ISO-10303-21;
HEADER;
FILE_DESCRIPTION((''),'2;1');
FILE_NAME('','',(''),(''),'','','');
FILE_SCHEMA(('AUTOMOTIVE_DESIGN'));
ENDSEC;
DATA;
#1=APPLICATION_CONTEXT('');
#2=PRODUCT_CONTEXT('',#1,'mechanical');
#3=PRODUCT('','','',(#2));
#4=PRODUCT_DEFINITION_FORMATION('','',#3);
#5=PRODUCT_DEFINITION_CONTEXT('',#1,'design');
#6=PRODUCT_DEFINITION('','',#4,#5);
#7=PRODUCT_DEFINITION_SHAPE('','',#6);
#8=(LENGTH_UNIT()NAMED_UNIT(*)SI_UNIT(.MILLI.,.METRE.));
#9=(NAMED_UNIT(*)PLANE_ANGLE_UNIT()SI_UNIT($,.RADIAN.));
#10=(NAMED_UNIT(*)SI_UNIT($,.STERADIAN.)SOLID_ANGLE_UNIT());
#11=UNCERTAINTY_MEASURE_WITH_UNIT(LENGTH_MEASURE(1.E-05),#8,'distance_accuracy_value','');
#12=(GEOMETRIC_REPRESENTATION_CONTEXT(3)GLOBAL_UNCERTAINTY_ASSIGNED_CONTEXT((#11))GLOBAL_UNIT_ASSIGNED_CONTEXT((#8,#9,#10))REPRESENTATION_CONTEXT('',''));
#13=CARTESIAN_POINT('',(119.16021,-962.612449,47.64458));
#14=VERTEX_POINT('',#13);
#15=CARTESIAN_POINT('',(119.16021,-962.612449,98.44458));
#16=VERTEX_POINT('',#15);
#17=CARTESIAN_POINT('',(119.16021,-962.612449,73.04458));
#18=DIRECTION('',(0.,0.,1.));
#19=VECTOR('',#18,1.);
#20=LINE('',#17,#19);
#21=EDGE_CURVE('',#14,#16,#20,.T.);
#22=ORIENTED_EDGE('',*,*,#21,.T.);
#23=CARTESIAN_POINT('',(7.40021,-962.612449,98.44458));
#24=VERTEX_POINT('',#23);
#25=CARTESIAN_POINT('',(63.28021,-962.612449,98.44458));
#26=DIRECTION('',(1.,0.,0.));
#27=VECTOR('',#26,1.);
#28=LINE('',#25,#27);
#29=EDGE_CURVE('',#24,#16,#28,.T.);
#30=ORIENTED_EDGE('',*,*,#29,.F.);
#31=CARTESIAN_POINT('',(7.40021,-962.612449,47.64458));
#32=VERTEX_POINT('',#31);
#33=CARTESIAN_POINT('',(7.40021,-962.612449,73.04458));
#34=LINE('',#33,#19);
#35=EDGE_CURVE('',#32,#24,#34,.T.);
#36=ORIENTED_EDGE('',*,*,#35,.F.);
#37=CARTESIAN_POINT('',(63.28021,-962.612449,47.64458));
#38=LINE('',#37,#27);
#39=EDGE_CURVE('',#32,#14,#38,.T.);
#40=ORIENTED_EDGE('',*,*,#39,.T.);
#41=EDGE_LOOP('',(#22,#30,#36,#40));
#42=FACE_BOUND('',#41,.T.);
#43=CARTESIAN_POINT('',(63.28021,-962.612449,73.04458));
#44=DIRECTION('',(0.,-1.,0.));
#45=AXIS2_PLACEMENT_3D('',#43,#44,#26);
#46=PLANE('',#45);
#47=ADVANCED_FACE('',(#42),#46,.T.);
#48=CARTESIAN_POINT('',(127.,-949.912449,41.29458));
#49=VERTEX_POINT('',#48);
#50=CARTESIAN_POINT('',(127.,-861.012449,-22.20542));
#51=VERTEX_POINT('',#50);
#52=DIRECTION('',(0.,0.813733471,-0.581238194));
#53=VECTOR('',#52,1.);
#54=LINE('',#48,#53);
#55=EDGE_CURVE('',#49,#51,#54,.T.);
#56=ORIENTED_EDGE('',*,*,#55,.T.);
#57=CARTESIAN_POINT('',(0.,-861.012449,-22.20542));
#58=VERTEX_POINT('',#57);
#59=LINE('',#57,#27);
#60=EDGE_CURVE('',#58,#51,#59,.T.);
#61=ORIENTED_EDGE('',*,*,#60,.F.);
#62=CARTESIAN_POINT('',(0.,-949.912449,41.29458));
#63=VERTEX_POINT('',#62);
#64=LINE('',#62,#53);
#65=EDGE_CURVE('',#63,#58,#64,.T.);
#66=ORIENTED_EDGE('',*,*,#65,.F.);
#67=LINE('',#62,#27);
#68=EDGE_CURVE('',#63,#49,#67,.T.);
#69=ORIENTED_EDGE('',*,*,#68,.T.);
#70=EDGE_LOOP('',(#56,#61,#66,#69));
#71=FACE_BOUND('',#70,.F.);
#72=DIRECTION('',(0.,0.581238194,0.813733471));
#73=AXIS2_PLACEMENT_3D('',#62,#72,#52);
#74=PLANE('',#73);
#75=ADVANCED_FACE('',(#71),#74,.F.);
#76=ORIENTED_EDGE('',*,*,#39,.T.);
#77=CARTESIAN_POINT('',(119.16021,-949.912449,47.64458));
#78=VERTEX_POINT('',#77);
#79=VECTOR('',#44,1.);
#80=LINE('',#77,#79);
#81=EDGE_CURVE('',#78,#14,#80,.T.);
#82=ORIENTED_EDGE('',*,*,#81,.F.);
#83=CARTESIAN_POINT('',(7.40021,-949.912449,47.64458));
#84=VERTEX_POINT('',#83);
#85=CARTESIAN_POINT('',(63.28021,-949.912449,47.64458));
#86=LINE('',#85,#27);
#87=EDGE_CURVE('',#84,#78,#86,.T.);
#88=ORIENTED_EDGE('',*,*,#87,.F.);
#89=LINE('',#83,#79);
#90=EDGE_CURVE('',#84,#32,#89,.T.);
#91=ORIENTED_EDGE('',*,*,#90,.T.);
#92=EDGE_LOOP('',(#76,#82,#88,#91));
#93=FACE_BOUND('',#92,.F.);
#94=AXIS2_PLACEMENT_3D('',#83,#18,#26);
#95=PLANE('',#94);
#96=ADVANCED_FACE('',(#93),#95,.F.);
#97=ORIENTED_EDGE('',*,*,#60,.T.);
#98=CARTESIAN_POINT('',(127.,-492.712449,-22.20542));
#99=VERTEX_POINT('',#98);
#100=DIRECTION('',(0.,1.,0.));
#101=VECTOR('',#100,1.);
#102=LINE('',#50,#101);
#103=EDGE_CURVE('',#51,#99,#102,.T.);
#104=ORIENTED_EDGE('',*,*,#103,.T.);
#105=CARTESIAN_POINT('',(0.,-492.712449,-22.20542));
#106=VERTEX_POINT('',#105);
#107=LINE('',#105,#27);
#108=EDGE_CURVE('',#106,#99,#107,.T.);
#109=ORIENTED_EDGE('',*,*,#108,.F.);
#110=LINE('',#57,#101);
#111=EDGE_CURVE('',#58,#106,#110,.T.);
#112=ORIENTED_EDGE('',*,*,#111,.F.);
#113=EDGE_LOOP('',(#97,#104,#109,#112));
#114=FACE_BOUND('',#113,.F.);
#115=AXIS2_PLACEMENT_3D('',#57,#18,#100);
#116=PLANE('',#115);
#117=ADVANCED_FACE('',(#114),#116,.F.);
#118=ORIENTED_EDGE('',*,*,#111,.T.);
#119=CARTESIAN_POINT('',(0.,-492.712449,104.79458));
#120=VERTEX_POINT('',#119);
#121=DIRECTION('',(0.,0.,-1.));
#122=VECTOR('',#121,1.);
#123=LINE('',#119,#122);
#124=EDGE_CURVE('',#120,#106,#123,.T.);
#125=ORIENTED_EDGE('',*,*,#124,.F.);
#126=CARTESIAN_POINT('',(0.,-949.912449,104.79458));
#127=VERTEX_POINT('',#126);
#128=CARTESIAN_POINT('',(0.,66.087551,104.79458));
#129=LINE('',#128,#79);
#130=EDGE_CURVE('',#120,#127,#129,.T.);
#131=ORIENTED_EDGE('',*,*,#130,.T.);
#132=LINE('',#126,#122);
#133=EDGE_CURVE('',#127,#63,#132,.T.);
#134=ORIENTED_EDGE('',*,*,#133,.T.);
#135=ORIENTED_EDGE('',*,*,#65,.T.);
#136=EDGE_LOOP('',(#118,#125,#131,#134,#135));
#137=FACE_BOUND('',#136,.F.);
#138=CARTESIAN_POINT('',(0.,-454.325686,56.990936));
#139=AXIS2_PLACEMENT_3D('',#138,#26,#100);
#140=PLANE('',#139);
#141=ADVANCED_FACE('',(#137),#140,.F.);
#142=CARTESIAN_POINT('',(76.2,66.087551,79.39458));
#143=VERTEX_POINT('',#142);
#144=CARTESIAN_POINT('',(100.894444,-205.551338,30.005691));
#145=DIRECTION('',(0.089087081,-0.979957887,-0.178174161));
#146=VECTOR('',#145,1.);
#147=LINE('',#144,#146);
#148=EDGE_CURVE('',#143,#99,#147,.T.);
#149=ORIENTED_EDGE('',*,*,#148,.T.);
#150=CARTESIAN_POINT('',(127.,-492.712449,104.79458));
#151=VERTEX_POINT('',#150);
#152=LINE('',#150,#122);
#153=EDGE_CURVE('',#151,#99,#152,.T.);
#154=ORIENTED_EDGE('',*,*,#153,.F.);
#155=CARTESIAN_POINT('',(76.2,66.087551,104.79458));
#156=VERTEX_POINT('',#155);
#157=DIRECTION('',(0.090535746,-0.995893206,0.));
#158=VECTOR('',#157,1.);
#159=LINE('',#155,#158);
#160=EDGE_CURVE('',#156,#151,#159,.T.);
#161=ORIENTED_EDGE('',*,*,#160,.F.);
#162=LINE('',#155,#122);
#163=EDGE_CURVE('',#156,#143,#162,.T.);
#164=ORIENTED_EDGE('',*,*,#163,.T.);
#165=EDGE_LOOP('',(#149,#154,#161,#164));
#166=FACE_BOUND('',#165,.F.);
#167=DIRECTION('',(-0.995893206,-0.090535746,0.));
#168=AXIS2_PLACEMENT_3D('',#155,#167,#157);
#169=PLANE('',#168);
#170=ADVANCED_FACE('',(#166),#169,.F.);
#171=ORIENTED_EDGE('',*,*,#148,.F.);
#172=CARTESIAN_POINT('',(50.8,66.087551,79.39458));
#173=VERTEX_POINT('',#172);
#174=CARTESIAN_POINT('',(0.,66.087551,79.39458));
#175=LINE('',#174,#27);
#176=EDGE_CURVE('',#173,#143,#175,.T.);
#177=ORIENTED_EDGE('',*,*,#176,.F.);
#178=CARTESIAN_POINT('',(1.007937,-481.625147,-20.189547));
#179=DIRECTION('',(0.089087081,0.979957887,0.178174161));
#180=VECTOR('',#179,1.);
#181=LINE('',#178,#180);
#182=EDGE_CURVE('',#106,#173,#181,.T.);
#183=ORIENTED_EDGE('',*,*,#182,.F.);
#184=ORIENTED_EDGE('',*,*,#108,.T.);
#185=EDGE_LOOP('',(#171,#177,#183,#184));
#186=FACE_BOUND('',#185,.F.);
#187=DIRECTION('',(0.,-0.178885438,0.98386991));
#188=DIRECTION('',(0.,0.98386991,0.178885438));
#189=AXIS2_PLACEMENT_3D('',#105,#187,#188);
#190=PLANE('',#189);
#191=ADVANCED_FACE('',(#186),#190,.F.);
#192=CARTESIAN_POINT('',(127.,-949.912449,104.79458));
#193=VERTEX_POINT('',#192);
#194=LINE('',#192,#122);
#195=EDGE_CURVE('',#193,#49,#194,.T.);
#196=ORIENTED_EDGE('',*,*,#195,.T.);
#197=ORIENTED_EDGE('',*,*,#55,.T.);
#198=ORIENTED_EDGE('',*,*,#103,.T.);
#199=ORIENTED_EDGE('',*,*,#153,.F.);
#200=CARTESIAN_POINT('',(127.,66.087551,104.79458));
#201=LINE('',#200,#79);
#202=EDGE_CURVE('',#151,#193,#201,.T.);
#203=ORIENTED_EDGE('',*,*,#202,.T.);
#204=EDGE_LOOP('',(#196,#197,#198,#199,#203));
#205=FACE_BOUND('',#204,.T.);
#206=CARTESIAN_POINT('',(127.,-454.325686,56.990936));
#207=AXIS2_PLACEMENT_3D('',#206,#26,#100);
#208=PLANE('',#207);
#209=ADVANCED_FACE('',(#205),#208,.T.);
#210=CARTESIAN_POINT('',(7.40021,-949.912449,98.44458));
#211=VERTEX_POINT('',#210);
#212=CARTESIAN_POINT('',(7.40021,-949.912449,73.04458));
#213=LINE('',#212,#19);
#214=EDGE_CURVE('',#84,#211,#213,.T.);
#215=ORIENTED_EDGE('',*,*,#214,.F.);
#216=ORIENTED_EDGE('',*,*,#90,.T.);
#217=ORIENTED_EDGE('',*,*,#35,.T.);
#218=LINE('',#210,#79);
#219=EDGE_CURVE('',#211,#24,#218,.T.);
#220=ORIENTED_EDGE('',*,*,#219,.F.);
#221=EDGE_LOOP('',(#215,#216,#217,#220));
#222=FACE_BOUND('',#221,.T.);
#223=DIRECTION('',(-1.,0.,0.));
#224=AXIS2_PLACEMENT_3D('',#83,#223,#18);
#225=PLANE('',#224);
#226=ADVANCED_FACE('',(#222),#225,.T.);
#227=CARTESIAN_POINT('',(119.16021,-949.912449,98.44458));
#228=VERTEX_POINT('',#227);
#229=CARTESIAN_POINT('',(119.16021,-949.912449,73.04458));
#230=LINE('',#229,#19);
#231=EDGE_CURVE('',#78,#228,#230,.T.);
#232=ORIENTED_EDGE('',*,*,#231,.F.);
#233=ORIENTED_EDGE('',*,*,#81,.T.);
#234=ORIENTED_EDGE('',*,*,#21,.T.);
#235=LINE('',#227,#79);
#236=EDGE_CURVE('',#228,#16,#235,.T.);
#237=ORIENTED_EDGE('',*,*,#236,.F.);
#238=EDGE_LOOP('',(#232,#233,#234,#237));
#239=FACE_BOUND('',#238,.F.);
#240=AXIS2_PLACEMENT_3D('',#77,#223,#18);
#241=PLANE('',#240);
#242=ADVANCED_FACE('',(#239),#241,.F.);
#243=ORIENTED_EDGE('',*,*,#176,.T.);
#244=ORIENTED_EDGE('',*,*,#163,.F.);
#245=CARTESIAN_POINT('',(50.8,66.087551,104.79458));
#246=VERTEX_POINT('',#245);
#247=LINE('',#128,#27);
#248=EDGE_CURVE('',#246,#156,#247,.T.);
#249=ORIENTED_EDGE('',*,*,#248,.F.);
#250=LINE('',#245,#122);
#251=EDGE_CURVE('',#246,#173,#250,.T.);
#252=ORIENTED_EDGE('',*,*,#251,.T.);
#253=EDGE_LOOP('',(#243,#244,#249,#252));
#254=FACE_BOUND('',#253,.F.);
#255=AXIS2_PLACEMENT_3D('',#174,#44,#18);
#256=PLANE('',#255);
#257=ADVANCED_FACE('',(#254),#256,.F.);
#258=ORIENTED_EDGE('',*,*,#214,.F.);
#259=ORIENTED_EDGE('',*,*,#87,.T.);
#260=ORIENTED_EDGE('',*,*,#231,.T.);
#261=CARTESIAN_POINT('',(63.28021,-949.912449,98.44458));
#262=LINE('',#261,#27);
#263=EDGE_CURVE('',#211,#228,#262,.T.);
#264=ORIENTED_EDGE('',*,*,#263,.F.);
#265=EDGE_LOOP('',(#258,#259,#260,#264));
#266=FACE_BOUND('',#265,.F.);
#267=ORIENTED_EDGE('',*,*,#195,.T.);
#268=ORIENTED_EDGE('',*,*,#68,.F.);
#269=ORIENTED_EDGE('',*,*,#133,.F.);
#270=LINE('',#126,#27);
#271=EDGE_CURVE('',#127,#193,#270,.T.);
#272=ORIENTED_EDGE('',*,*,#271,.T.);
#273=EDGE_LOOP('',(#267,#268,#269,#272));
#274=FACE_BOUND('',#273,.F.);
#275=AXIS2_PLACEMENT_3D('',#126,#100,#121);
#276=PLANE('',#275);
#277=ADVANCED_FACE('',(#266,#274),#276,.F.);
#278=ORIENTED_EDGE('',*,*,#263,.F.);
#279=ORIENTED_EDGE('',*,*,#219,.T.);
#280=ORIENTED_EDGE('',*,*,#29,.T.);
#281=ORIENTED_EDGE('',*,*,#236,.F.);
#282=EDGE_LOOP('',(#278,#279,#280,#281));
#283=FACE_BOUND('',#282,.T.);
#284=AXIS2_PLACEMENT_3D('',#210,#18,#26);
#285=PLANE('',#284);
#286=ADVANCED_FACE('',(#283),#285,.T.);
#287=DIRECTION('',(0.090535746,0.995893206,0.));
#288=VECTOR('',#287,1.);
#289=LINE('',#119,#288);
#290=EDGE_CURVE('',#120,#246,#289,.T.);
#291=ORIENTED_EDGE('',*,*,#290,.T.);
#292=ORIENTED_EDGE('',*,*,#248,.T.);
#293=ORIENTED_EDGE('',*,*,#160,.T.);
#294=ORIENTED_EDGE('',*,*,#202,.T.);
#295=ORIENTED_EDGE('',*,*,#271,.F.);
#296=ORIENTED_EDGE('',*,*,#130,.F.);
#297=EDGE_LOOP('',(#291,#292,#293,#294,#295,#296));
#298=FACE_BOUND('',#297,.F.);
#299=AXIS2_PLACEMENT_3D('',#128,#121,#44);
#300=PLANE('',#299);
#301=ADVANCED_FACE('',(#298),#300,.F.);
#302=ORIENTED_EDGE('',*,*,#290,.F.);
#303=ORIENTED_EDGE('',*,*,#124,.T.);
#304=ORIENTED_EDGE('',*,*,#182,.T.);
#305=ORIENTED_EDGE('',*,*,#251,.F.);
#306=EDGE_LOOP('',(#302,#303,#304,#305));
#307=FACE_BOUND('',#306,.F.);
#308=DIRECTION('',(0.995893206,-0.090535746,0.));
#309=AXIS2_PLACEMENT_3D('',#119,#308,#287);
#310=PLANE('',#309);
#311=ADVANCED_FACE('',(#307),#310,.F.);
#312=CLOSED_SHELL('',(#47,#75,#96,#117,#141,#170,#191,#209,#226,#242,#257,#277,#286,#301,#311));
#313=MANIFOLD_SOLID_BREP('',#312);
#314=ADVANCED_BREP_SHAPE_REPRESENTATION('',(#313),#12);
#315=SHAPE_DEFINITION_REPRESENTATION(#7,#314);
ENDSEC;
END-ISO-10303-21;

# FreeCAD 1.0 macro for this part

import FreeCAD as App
import Part
import Sketcher
Q = App.Units.Quantity

doc = App.newDocument("Part")
body = doc.addObject("PartDesign::Body", "Body")

# Sketch on YZ plane
sketch1 = body.newObject("Sketcher::SketchObject", "Sketch")
sketch1.AttachmentSupport = (doc.getObject("YZ_Plane"), [""])
sketch1.MapMode = "FlatFace"
sketch1.addGeometry(Part.LineSegment(App.Vector(66, 105, 0), App.Vector(-950, 105, 0)), False)
sketch1.addGeometry(Part.LineSegment(App.Vector(-950, 105, 0), App.Vector(-950, 41, 0)), False)
sketch1.addGeometry(Part.LineSegment(App.Vector(-950, 41, 0), App.Vector(-861, -22, 0)), False)
sketch1.addGeometry(Part.LineSegment(App.Vector(-861, -22, 0), App.Vector(-493, -22, 0)), False)
sketch1.addGeometry(Part.LineSegment(App.Vector(-493, -22, 0), App.Vector(66, 79, 0)), False)
sketch1.addGeometry(Part.LineSegment(App.Vector(66, 79, 0), App.Vector(66, 105, 0)), False)
sketch1.addConstraint(Sketcher.Constraint("Coincident", 0, 2, 1, 1))
sketch1.addConstraint(Sketcher.Constraint("Coincident", 1, 2, 2, 1))
sketch1.addConstraint(Sketcher.Constraint("Coincident", 2, 2, 3, 1))
sketch1.addConstraint(Sketcher.Constraint("Coincident", 3, 2, 4, 1))
sketch1.addConstraint(Sketcher.Constraint("Coincident", 4, 2, 5, 1))
sketch1.addConstraint(Sketcher.Constraint("Coincident", 5, 2, 0, 1))
sketch1.addConstraint(Sketcher.Constraint("Horizontal", 0))
sketch1.addConstraint(Sketcher.Constraint("Vertical", 1))
sketch1.addConstraint(Sketcher.Constraint("Horizontal", 3))
sketch1.addConstraint(Sketcher.Constraint("Vertical", 5))
sketch1.addConstraint(Sketcher.Constraint("DistanceX", 0, 2, 0, 1, Q("40 in")))
sketch1.addConstraint(Sketcher.Constraint("DistanceY", 5, 1, 5, 2, Q("1 in")))
sketch1.addConstraint(Sketcher.Constraint("DistanceX", 3, 1, 3, 2, Q("14.5 in")))
sketch1.addConstraint(Sketcher.Constraint("DistanceY", 1, 2, 1, 1, Q("2.5 in")))
sketch1.addConstraint(Sketcher.Constraint("DistanceY", 2, 2, 0, 2, Q("5 in")))
sketch1.addConstraint(Sketcher.Constraint("DistanceX", 1, 2, 3, 2, Q("18 in")))
sketch1.addConstraint(Sketcher.Constraint("DistanceX", 0, 2, -1, 1, Q("949.912449 mm")))
sketch1.addConstraint(Sketcher.Constraint("DistanceY", -1, 1, 0, 2, Q("104.79458 mm")))
pad1 = body.newObject("PartDesign::Pad", "Pad")
pad1.Profile = sketch1
pad1.Length = Q("5 in")

# Sketch on XZ plane
sketch2 = body.newObject("Sketcher::SketchObject", "Sketch001")
sketch2.AttachmentSupport = (doc.getObject("XZ_Plane"), [""])
sketch2.MapMode = "FlatFace"
sketch2.AttachmentOffset = App.Placement(App.Vector(0, 0, 949.912449), App.Rotation())
sketch2.addGeometry(Part.LineSegment(App.Vector(7, 98, 0), App.Vector(7, 48, 0)), False)
sketch2.addGeometry(Part.LineSegment(App.Vector(7, 48, 0), App.Vector(119, 48, 0)), False)
sketch2.addGeometry(Part.LineSegment(App.Vector(119, 48, 0), App.Vector(119, 98, 0)), False)
sketch2.addGeometry(Part.LineSegment(App.Vector(119, 98, 0), App.Vector(7, 98, 0)), False)
sketch2.addConstraint(Sketcher.Constraint("Coincident", 0, 2, 1, 1))
sketch2.addConstraint(Sketcher.Constraint("Coincident", 1, 2, 2, 1))
sketch2.addConstraint(Sketcher.Constraint("Coincident", 2, 2, 3, 1))
sketch2.addConstraint(Sketcher.Constraint("Coincident", 3, 2, 0, 1))
sketch2.addConstraint(Sketcher.Constraint("Vertical", 0))
sketch2.addConstraint(Sketcher.Constraint("Horizontal", 1))
sketch2.addConstraint(Sketcher.Constraint("Vertical", 2))
sketch2.addConstraint(Sketcher.Constraint("Horizontal", 3))
sketch2.addConstraint(Sketcher.Constraint("DistanceY", 0, 2, 0, 1, Q("2 in")))
sketch2.addConstraint(Sketcher.Constraint("DistanceX", 1, 1, 1, 2, Q("4.4 in")))
sketch2.addConstraint(Sketcher.Constraint("DistanceX", -1, 1, 0, 2, Q("7.40021 mm")))
sketch2.addConstraint(Sketcher.Constraint("DistanceY", -1, 1, 0, 2, Q("47.64458 mm")))
pad2 = body.newObject("PartDesign::Pad", "Pad001")
pad2.Profile = sketch2
pad2.Length = Q("0.5 in")

# Sketch on XY plane
sketch3 = body.newObject("Sketcher::SketchObject", "Sketch002")
sketch3.AttachmentSupport = (doc.getObject("XY_Plane"), [""])
sketch3.MapMode = "FlatFace"
sketch3.AttachmentOffset = App.Placement(App.Vector(0, 0, 104.79458), App.Rotation())
sketch3.addGeometry(Part.LineSegment(App.Vector(0, -493, 0), App.Vector(51, 66, 0)), False)
sketch3.addGeometry(Part.LineSegment(App.Vector(51, 66, 0), App.Vector(0, 66, 0)), False)
sketch3.addGeometry(Part.LineSegment(App.Vector(0, 66, 0), App.Vector(0, -493, 0)), False)
sketch3.addGeometry(Part.LineSegment(App.Vector(127, 66, 0), App.Vector(76, 66, 0)), False)
sketch3.addGeometry(Part.LineSegment(App.Vector(76, 66, 0), App.Vector(127, -493, 0)), False)
sketch3.addGeometry(Part.LineSegment(App.Vector(127, -493, 0), App.Vector(127, 66, 0)), False)
sketch3.addConstraint(Sketcher.Constraint("Coincident", 0, 2, 1, 1))
sketch3.addConstraint(Sketcher.Constraint("Coincident", 1, 2, 2, 1))
sketch3.addConstraint(Sketcher.Constraint("Coincident", 2, 2, 0, 1))
sketch3.addConstraint(Sketcher.Constraint("Coincident", 3, 2, 4, 1))
sketch3.addConstraint(Sketcher.Constraint("Coincident", 4, 2, 5, 1))
sketch3.addConstraint(Sketcher.Constraint("Coincident", 5, 2, 3, 1))
sketch3.addConstraint(Sketcher.Constraint("Horizontal", 1))
sketch3.addConstraint(Sketcher.Constraint("Vertical", 2))
sketch3.addConstraint(Sketcher.Constraint("Horizontal", 3))
sketch3.addConstraint(Sketcher.Constraint("Vertical", 5))
sketch3.addConstraint(Sketcher.Constraint("PointOnObject", 1, 2, -2))
sketch3.addConstraint(Sketcher.Constraint("Horizontal", 1, 2, 3, 2))
sketch3.addConstraint(Sketcher.Constraint("Horizontal", 2, 2, 4, 2))
sketch3.addConstraint(Sketcher.Constraint("Equal", 1, 3))
sketch3.addConstraint(Sketcher.Constraint("DistanceX", 1, 2, 1, 1, Q("2 in")))
sketch3.addConstraint(Sketcher.Constraint("DistanceY", 2, 2, 2, 1, Q("22 in")))
sketch3.addConstraint(Sketcher.Constraint("DistanceX", -1, 1, 3, 2, Q("3 in")))
sketch3.addConstraint(Sketcher.Constraint("DistanceY", -1, 1, 0, 2, Q("66.087551 mm")))
pocket1 = body.newObject("PartDesign::Pocket", "Pocket")
pocket1.Profile = sketch3
pocket1.Length = Q("5.46 in")

doc.recompute()
